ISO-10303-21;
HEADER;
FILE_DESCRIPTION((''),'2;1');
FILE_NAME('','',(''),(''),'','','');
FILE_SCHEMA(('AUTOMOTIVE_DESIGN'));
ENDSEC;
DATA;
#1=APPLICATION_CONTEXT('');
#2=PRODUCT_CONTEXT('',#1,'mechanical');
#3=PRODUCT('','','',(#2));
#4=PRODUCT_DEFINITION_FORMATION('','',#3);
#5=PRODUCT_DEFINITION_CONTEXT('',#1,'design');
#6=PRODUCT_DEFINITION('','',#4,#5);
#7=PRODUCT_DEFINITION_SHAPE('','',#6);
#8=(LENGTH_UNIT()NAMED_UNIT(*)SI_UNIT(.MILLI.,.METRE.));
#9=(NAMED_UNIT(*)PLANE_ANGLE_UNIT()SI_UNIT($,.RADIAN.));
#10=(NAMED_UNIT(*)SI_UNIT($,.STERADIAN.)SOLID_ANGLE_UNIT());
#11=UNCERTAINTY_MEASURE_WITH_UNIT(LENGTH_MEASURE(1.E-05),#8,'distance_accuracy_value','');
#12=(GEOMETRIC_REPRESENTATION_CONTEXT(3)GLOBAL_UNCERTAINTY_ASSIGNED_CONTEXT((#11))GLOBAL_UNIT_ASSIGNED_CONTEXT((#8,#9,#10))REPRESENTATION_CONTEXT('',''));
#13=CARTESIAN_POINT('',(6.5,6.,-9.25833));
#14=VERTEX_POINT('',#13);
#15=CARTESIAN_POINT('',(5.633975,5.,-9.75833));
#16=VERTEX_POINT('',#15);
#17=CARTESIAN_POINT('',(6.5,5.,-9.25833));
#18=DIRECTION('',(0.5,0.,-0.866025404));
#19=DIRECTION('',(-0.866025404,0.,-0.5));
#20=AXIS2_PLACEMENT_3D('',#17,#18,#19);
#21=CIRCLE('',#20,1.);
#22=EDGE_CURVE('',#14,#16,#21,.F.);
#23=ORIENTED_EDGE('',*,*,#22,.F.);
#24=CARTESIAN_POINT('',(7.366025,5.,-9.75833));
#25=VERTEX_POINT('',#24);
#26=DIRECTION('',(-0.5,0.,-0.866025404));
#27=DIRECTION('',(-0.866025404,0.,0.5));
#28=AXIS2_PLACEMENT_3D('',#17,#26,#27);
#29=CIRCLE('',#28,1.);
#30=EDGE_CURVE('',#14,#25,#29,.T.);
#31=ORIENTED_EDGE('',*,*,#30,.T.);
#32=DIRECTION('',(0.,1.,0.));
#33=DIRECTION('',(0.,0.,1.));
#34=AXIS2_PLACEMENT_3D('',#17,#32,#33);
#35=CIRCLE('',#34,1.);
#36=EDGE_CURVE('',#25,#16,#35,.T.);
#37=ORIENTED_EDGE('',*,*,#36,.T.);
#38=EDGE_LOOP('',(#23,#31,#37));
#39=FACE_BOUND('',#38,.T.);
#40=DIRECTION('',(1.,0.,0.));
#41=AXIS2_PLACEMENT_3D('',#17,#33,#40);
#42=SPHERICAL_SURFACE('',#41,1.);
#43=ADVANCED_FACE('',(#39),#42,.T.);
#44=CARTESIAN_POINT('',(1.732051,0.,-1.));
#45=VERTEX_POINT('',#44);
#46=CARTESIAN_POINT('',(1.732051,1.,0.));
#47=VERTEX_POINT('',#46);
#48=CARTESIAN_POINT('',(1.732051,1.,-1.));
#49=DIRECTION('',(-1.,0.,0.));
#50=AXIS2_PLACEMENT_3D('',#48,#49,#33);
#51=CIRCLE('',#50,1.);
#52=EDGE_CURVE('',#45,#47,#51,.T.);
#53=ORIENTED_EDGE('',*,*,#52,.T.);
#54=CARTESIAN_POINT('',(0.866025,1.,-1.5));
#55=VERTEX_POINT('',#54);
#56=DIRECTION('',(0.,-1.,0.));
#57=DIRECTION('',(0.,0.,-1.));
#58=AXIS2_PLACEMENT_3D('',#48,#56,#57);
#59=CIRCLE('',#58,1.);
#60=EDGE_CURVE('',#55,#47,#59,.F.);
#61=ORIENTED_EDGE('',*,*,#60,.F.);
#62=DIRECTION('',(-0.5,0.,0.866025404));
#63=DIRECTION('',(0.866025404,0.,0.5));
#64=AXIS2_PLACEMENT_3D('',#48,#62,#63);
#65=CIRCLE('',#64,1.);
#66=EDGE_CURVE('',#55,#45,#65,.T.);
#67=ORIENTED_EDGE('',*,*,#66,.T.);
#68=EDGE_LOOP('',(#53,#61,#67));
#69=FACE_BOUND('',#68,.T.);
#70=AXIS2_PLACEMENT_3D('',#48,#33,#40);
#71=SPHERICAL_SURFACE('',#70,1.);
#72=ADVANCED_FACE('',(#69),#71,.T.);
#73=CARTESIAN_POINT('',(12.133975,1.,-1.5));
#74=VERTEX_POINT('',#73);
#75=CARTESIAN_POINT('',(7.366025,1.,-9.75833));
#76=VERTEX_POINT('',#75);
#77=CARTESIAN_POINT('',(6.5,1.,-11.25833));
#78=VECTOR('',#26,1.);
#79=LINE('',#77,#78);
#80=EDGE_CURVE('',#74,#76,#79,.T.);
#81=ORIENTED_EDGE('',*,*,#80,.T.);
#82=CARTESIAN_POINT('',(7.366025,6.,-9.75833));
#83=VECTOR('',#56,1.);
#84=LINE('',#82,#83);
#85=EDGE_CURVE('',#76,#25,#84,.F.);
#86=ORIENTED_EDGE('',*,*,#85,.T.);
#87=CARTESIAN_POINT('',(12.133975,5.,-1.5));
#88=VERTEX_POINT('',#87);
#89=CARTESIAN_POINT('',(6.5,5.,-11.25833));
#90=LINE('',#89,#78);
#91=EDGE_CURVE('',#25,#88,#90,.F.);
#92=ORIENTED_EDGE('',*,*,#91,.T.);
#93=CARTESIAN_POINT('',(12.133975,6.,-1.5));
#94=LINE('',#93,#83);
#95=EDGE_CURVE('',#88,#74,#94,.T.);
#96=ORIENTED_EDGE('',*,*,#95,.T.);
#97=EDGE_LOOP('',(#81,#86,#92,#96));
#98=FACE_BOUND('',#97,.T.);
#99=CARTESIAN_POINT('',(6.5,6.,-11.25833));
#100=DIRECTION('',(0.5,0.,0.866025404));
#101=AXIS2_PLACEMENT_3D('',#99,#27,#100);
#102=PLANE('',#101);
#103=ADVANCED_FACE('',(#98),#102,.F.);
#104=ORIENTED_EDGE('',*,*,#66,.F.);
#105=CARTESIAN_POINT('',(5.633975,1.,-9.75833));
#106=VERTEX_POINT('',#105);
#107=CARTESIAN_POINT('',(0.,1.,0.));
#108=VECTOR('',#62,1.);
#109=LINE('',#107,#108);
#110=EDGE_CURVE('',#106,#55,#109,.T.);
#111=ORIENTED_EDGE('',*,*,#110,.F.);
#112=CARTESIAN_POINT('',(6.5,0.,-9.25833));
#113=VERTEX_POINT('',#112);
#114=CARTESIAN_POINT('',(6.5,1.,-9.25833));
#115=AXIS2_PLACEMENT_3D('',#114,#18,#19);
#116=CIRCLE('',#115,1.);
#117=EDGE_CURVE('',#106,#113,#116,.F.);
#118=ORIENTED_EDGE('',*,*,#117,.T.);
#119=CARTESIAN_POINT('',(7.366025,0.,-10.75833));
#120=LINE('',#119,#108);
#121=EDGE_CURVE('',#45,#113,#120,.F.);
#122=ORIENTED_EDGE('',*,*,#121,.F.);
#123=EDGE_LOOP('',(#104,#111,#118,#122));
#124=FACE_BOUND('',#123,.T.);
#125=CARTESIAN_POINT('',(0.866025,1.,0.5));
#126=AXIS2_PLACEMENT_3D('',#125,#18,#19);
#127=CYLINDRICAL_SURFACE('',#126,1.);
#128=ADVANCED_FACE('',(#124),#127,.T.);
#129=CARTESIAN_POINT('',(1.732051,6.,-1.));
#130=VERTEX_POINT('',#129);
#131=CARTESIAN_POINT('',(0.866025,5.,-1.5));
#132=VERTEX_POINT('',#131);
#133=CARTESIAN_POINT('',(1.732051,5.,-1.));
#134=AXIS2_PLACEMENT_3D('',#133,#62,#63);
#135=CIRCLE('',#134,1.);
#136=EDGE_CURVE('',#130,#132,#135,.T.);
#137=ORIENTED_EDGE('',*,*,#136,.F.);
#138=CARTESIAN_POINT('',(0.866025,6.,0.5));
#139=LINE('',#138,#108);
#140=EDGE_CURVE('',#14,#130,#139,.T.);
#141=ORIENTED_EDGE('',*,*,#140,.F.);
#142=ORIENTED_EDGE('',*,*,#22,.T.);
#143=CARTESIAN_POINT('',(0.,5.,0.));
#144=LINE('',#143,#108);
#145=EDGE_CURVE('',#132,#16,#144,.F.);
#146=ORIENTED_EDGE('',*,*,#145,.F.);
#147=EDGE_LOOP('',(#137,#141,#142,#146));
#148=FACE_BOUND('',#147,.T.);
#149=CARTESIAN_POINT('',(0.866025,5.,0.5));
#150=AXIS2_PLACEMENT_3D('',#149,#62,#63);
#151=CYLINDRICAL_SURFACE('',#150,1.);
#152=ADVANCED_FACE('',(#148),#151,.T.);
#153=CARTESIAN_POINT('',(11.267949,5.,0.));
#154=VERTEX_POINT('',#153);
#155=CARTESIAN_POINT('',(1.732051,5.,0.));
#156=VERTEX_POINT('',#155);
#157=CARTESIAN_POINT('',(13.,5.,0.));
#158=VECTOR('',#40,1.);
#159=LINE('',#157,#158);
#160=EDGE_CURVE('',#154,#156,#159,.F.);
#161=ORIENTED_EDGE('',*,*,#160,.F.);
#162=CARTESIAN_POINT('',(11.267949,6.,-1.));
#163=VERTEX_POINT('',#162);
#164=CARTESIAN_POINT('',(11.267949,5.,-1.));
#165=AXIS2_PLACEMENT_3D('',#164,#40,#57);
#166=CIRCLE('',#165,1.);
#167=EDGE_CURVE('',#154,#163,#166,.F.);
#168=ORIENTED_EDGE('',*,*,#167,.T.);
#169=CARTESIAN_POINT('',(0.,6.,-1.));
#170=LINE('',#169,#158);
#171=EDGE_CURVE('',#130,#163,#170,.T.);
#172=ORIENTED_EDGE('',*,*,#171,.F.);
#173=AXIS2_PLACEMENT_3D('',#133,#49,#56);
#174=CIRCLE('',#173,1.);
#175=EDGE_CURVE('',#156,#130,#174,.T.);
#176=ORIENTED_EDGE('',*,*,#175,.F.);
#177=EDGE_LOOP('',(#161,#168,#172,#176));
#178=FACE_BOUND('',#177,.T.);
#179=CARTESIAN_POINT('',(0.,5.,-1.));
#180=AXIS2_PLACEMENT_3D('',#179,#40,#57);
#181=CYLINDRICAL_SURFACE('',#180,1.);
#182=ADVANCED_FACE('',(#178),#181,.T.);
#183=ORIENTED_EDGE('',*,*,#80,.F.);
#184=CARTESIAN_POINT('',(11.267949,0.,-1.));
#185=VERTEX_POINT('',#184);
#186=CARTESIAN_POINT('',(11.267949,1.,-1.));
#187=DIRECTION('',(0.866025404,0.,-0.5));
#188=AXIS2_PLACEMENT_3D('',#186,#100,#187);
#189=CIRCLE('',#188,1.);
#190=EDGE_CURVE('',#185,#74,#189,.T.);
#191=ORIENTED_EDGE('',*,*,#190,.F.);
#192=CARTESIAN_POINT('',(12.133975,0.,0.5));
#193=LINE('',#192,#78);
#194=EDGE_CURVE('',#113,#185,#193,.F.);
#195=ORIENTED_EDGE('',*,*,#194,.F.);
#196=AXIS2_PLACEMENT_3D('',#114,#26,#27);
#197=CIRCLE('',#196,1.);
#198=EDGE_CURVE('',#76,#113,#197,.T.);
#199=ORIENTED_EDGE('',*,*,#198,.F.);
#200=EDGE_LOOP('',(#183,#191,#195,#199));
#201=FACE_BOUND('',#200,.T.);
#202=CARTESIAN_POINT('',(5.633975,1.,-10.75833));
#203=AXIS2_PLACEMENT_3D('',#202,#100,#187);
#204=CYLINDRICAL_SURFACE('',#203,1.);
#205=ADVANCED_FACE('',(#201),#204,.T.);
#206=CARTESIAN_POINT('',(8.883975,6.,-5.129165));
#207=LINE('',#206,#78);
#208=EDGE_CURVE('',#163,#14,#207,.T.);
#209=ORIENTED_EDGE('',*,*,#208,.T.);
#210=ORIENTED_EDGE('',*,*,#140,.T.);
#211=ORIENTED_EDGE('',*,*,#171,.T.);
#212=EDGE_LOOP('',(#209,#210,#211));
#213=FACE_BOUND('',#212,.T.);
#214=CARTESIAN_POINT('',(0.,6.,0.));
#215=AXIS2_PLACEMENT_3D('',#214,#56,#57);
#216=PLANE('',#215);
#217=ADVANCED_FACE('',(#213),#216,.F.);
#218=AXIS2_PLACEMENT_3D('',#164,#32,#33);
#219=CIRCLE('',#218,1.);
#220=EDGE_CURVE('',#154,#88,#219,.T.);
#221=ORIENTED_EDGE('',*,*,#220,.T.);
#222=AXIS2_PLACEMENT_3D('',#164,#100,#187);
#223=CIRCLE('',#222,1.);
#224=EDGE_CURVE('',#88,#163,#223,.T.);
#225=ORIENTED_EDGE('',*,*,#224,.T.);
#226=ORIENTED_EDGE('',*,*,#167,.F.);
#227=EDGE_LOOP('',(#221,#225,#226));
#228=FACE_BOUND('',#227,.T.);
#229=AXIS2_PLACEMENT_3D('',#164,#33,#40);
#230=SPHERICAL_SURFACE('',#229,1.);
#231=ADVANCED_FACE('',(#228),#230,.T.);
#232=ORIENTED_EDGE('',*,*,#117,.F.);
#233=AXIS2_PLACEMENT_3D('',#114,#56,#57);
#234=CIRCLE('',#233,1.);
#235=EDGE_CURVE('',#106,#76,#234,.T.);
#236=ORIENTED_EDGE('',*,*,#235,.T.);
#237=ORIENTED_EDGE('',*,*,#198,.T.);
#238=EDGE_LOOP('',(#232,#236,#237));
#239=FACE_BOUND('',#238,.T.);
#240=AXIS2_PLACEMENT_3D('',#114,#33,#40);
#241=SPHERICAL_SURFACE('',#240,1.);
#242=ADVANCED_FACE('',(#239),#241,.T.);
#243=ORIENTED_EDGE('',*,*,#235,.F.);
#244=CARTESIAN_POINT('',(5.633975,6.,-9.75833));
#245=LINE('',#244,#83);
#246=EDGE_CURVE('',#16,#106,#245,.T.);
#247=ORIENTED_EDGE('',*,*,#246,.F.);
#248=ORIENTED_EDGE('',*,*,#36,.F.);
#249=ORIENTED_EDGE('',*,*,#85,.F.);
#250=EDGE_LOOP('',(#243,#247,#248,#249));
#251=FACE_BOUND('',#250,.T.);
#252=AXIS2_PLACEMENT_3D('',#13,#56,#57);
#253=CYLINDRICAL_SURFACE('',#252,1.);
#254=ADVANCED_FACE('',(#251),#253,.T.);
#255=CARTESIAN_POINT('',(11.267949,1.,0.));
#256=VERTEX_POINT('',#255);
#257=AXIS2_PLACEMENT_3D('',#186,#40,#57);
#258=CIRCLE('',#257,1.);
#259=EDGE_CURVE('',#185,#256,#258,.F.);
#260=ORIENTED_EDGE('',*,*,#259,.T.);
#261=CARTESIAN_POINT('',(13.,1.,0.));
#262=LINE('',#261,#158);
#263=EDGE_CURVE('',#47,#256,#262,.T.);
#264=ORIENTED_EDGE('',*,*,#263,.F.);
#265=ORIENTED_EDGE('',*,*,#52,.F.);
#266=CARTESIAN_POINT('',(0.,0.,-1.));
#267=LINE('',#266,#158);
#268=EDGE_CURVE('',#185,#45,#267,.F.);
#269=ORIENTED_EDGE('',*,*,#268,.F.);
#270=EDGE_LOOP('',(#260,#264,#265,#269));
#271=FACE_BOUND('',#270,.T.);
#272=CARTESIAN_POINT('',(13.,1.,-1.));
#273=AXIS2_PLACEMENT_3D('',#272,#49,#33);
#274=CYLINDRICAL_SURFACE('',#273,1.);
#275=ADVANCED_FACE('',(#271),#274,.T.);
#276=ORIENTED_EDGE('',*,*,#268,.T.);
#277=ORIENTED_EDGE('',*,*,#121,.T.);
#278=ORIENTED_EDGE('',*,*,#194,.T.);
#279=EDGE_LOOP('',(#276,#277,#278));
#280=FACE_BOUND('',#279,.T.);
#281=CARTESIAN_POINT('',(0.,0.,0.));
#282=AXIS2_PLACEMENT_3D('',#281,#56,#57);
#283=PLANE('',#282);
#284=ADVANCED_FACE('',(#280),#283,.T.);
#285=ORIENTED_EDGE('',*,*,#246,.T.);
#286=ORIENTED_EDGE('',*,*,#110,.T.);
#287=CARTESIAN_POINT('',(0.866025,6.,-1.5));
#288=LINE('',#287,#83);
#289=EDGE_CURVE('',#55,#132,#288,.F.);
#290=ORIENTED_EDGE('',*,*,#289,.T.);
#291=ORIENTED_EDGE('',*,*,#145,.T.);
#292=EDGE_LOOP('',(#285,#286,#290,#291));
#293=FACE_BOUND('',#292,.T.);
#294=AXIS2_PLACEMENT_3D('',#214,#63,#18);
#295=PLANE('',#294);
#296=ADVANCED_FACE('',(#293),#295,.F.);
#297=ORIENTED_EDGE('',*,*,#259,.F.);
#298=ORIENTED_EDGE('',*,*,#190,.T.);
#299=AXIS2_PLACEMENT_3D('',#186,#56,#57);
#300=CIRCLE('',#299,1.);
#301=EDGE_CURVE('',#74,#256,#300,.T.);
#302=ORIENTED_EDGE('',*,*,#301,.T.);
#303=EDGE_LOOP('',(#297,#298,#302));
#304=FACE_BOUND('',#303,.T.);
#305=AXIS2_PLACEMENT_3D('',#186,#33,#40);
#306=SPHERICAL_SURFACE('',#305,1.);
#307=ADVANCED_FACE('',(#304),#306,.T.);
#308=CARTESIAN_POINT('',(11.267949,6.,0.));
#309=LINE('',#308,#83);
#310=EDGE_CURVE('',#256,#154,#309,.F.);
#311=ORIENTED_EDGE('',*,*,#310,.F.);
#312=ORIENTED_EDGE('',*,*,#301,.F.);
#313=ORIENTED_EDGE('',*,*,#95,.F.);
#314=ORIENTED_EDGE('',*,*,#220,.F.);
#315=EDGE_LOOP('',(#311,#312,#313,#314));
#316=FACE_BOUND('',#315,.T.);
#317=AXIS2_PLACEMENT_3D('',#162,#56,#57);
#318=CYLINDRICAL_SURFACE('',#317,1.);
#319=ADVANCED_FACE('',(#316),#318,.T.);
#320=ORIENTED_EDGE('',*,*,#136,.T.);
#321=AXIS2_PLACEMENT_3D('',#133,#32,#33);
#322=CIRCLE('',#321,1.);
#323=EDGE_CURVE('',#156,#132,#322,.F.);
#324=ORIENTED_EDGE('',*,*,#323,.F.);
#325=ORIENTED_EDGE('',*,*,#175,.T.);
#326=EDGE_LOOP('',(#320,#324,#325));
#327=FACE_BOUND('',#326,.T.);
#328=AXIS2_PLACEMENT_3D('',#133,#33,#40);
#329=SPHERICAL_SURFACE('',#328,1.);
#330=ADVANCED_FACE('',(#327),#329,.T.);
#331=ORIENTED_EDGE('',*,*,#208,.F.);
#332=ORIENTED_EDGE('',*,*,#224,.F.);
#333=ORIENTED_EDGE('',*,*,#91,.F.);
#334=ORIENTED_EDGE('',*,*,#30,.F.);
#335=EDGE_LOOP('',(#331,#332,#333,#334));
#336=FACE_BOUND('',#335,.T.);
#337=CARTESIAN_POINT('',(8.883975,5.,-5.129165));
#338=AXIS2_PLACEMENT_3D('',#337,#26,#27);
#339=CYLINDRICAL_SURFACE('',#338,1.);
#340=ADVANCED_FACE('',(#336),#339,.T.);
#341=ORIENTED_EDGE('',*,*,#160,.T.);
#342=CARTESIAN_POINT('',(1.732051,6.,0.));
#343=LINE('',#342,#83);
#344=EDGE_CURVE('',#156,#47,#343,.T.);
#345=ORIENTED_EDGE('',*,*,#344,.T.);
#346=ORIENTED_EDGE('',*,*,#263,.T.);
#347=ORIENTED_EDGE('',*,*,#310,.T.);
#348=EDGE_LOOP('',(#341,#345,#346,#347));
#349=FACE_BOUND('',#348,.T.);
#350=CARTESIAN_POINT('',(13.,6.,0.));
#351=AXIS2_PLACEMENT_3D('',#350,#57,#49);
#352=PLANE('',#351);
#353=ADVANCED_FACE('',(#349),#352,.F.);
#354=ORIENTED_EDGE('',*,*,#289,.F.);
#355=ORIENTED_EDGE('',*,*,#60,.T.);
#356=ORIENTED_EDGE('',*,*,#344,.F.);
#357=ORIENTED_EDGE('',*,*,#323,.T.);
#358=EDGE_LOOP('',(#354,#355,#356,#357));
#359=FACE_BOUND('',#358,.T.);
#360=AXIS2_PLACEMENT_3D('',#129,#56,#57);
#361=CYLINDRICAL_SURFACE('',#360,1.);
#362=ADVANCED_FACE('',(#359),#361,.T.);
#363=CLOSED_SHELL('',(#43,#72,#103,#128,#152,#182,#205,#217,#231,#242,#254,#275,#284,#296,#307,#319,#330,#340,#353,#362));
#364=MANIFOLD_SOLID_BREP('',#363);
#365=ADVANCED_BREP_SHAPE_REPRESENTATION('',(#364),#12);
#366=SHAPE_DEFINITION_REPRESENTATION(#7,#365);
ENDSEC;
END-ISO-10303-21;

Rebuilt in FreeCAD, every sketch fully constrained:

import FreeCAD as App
import Part
import Sketcher

V = App.Vector
Q = App.Units.Quantity

doc = App.newDocument("Part")
body = doc.addObject("PartDesign::Body", "Body")

sketch1 = body.newObject("Sketcher::SketchObject", "Sketch")
sketch1.AttachmentSupport = (doc.getObject("XZ_Plane"), [""])
sketch1.MapMode = "FlatFace"
sketch1.addGeometry(Part.LineSegment(V(6, -11, 0), V(0, 0, 0)), False)
sketch1.addGeometry(Part.LineSegment(V(0, 0, 0), V(13, 0, 0)), False)
sketch1.addGeometry(Part.LineSegment(V(13, 0, 0), V(6, -11, 0)), False)
sketch1.addConstraint(Sketcher.Constraint("Coincident", 0, 2, 1, 1))
sketch1.addConstraint(Sketcher.Constraint("Coincident", 1, 2, 2, 1))
sketch1.addConstraint(Sketcher.Constraint("Coincident", 2, 2, 0, 1))
sketch1.addConstraint(Sketcher.Constraint("Horizontal", 1))
sketch1.addConstraint(Sketcher.Constraint("Coincident", 0, 2, -1, 1))
sketch1.addConstraint(Sketcher.Constraint("Equal", 0, 2))
sketch1.addConstraint(Sketcher.Constraint("DistanceX", 1, 1, 1, 2, Q("13 mm")))
sketch1.addConstraint(Sketcher.Constraint("Angle", 0, Q("120 deg")))
pad1 = body.newObject("PartDesign::Pad", "Pad")
pad1.Profile = sketch1
pad1.Length = 6
pad1.Reversed = True
doc.recompute()

fillet = body.newObject("PartDesign::Fillet", "Fillet")
fillet.Base = (pad1, ["Edge1"])
fillet.UseAllEdges = True
fillet.Radius = 1

doc.recompute()
